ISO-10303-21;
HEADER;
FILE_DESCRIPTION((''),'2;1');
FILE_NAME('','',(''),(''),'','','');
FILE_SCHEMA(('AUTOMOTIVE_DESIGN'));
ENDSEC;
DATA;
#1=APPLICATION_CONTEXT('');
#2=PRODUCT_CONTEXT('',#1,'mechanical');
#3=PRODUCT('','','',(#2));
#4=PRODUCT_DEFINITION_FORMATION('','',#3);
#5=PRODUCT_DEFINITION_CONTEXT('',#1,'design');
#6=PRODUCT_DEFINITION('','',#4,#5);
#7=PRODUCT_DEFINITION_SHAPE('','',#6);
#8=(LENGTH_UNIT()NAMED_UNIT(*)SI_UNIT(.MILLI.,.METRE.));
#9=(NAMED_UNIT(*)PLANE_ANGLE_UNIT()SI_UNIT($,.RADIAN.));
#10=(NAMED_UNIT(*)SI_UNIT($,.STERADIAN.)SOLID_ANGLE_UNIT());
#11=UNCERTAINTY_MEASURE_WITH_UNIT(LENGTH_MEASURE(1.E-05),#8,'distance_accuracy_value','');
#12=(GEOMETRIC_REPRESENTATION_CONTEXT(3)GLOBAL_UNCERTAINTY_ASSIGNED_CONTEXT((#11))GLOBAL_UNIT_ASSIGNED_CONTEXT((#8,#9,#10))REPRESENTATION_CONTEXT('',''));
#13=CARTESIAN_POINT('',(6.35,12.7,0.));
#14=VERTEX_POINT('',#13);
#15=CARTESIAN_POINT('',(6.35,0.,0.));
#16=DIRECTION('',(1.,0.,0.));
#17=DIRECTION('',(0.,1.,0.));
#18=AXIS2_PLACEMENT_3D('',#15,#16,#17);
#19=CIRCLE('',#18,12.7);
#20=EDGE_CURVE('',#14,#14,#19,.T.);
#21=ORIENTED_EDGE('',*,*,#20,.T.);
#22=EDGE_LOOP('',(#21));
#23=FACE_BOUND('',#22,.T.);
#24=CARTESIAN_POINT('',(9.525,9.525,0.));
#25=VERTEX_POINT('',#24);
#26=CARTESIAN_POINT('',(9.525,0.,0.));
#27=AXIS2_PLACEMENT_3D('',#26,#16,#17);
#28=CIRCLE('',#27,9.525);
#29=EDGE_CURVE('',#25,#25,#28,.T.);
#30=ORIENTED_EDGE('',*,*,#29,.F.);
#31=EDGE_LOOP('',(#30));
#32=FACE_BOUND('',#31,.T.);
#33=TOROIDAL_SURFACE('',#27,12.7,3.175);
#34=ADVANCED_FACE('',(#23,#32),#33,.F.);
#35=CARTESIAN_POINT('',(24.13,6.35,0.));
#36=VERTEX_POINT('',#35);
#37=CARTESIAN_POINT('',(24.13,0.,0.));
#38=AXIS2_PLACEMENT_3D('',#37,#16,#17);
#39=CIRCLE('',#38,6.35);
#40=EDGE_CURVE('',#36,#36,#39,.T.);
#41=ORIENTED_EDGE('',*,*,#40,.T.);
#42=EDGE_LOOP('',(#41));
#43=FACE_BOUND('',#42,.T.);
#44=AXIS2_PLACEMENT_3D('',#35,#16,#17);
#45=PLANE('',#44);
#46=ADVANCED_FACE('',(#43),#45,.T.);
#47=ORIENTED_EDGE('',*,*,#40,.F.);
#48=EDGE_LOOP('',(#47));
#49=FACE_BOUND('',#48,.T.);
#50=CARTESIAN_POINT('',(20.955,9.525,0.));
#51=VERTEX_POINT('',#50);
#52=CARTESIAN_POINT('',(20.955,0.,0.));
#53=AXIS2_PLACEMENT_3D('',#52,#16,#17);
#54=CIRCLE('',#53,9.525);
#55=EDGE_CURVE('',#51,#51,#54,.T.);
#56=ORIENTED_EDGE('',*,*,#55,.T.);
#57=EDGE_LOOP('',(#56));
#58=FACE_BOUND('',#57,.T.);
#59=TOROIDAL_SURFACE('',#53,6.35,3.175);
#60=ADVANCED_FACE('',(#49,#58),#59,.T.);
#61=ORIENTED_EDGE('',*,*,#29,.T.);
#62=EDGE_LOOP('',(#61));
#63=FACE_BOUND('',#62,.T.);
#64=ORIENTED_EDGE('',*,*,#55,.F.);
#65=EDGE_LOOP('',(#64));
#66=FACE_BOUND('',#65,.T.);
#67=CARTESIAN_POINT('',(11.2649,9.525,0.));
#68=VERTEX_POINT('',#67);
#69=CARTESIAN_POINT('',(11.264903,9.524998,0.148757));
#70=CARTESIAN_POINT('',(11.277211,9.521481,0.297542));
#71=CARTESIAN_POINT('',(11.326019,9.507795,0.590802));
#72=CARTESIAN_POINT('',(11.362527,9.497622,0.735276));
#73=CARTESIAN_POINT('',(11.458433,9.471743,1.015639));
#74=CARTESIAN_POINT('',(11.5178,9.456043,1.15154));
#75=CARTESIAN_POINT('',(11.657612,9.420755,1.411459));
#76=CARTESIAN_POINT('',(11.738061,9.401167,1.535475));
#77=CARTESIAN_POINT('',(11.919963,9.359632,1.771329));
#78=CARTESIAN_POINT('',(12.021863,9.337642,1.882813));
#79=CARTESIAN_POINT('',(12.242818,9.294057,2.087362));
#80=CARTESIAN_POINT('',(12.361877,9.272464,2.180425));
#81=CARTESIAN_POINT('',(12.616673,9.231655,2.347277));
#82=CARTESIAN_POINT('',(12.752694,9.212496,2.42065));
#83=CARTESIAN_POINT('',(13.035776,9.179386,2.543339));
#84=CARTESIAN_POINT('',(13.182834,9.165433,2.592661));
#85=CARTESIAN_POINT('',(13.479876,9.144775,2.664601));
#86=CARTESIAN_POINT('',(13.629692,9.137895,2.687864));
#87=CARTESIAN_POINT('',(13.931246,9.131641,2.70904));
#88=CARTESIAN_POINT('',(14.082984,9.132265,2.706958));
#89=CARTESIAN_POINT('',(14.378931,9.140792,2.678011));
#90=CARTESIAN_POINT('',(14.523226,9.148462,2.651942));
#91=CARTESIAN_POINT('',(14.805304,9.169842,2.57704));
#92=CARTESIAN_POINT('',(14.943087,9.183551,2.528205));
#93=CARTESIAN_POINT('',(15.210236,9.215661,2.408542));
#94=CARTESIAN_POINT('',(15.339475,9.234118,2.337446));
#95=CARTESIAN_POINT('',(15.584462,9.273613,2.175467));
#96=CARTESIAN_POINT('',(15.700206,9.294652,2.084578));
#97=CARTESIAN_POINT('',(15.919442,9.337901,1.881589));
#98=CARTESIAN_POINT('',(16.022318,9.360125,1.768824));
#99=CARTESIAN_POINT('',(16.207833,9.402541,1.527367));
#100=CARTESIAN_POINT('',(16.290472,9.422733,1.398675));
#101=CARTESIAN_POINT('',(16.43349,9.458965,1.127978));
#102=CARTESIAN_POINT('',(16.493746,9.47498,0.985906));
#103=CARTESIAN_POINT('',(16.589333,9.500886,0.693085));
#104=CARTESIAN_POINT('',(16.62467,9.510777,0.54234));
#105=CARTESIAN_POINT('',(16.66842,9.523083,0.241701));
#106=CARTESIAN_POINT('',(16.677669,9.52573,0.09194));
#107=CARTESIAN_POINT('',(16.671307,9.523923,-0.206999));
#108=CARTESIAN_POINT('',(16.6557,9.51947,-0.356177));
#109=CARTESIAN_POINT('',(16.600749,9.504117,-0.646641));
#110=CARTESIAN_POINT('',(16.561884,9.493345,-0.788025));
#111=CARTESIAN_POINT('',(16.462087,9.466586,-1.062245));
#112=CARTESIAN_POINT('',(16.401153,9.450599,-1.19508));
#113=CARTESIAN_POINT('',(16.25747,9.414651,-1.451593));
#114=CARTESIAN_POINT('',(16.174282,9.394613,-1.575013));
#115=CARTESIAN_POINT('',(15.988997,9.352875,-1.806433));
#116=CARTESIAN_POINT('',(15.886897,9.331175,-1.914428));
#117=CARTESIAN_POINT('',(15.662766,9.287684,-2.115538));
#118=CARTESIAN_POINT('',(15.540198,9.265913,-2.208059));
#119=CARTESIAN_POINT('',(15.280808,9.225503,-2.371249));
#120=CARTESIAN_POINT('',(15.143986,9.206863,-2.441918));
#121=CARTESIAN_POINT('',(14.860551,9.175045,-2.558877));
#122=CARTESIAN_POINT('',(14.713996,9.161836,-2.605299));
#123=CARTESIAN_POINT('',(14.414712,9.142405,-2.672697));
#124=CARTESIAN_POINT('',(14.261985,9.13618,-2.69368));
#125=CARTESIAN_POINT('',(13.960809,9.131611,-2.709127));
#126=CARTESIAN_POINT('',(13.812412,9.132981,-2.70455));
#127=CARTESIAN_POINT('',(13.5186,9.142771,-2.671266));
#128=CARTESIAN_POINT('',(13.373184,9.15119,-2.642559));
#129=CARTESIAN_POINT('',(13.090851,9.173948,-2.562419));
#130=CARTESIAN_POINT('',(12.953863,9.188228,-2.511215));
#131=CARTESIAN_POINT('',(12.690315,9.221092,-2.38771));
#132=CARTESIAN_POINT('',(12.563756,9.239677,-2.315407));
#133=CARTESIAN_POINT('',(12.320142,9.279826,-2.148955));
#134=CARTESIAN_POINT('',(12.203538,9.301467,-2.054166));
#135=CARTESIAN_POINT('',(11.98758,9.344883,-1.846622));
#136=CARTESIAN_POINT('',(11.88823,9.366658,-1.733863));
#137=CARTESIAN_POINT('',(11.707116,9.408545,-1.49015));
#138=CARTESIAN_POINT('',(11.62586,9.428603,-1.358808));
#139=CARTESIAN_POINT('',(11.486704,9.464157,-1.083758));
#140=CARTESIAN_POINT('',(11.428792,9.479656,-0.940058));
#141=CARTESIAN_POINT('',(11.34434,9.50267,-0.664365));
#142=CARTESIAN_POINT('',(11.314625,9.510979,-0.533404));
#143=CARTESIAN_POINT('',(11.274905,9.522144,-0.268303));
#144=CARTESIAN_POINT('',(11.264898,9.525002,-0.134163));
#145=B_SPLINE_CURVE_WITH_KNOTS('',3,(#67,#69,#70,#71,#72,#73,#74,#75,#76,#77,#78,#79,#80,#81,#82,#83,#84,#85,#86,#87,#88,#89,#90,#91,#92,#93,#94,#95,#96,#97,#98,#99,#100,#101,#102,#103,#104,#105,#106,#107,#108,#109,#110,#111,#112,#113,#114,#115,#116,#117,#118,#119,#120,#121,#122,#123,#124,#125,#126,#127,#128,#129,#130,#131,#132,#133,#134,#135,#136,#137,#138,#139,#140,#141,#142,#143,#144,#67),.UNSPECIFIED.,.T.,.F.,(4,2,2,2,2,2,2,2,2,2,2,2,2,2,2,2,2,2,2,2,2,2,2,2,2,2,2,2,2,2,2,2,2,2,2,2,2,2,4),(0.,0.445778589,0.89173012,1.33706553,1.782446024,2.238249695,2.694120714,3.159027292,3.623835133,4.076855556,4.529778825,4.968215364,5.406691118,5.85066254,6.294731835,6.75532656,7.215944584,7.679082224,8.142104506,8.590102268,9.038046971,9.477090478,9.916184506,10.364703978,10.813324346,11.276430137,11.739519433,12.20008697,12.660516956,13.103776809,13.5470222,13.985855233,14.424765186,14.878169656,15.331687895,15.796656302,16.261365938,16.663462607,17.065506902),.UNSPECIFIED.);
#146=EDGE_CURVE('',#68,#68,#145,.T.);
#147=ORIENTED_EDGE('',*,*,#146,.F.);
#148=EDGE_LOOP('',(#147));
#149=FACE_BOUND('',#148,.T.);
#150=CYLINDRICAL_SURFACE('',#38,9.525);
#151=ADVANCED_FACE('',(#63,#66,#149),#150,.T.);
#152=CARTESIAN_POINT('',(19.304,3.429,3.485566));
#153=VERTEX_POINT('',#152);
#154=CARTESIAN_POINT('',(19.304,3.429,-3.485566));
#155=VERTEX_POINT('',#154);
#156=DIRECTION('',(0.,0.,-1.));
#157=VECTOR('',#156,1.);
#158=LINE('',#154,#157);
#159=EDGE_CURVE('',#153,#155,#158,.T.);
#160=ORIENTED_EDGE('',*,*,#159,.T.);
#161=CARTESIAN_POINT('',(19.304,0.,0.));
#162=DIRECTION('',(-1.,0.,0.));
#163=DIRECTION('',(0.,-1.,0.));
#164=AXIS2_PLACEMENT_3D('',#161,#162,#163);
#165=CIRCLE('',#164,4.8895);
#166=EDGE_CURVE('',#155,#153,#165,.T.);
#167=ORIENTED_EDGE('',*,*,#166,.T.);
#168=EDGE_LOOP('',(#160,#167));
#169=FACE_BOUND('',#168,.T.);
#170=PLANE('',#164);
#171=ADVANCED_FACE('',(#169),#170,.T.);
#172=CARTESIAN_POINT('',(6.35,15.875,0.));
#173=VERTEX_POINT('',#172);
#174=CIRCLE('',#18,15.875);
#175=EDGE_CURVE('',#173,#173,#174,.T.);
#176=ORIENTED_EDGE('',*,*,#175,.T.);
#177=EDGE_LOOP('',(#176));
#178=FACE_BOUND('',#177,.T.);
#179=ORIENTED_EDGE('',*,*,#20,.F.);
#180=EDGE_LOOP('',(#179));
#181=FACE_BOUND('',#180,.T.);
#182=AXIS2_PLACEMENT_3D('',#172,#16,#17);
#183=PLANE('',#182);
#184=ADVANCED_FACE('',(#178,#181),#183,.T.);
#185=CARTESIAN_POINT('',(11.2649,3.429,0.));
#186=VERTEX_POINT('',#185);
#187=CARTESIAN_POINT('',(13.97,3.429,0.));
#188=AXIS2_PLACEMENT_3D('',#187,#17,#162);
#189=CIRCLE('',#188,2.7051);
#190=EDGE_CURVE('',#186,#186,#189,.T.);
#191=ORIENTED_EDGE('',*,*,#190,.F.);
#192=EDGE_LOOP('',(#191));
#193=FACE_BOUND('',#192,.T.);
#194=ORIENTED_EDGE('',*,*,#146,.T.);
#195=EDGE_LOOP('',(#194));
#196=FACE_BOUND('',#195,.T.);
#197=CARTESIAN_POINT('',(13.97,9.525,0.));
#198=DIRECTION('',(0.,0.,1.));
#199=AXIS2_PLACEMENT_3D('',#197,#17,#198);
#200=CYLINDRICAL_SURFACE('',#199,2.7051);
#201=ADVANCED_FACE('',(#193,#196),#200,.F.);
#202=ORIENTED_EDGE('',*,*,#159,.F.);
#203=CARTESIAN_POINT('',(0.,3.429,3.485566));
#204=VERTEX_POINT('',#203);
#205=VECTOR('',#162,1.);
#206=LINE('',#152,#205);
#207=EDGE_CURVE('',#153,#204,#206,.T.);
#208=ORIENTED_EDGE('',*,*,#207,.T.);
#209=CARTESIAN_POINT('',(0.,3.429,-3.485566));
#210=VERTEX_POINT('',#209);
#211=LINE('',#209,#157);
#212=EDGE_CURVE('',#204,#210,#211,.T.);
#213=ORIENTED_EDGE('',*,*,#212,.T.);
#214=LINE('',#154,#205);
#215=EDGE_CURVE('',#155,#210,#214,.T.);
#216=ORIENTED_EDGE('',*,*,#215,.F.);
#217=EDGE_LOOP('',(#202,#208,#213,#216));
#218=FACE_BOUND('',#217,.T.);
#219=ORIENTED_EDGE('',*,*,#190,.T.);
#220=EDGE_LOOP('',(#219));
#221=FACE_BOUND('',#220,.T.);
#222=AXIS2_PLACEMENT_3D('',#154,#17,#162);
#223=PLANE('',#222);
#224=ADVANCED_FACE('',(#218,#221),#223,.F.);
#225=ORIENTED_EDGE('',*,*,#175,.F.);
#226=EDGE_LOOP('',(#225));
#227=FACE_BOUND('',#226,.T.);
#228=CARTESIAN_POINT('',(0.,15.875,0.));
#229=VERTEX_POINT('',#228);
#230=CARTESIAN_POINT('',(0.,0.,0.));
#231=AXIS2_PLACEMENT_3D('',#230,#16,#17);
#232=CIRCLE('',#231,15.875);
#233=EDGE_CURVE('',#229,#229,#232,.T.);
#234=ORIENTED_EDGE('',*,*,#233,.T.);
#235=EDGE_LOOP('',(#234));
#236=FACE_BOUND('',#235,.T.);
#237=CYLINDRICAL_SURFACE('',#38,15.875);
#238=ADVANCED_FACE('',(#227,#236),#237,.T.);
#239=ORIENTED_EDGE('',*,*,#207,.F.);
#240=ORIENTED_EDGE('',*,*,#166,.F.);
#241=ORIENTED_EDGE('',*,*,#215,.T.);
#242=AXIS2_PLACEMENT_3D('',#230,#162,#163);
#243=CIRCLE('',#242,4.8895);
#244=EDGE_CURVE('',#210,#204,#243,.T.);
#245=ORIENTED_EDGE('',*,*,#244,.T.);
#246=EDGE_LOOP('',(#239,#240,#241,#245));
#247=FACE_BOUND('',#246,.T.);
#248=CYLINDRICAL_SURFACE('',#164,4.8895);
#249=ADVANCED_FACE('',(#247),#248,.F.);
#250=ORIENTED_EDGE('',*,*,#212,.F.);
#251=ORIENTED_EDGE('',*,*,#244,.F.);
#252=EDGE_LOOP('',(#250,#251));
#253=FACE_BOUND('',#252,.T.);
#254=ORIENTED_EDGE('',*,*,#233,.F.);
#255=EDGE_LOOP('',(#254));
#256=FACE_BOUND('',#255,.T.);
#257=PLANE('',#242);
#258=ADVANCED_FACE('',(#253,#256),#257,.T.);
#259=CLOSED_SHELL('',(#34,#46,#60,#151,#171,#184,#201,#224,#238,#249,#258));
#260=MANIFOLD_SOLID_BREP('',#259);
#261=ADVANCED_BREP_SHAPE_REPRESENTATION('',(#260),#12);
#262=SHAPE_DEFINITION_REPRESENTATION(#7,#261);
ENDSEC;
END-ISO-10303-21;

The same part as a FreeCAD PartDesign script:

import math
import FreeCAD as App
import Part
import Sketcher

V = App.Vector
Q = App.Units.Quantity

doc = App.newDocument("Part")
body = doc.addObject("PartDesign::Body", "Body")

sketch1 = doc.addObject("Sketcher::SketchObject", "Sketch")
body.addObject(sketch1)
sketch1.AttachmentSupport = (doc.XY_Plane, [""])
sketch1.MapMode = "FlatFace"
sketch1.addGeometry(Part.LineSegment(V(0, 15.9, 0), V(0, 0, 0)), False)
sketch1.addGeometry(Part.LineSegment(V(0, 0, 0), V(24.1, 0, 0)), False)
sketch1.addGeometry(Part.LineSegment(V(24.1, 0, 0), V(24.1, 6.3, 0)), False)
sketch1.addGeometry(Part.ArcOfCircle(Part.Circle(V(21, 6.3, 0), V(0, 0, 1), 3.2), math.radians(0), math.radians(90)), False)
sketch1.addGeometry(Part.LineSegment(V(21, 9.5, 0), V(9.5, 9.5, 0)), False)
sketch1.addGeometry(Part.ArcOfCircle(Part.Circle(V(9.5, 12.7, 0), V(0, 0, 1), 3.2), math.radians(-180), math.radians(-90)), False)
sketch1.addGeometry(Part.LineSegment(V(6.3, 12.7, 0), V(6.3, 15.9, 0)), False)
sketch1.addGeometry(Part.LineSegment(V(6.3, 15.9, 0), V(0, 15.9, 0)), False)
sketch1.addConstraint(Sketcher.Constraint("Coincident", 0, 2, 1, 1))
sketch1.addConstraint(Sketcher.Constraint("Coincident", 1, 2, 2, 1))
sketch1.addConstraint(Sketcher.Constraint("Tangent", 2, 2, 3, 1))
sketch1.addConstraint(Sketcher.Constraint("Tangent", 3, 2, 4, 1))
sketch1.addConstraint(Sketcher.Constraint("Tangent", 4, 2, 5, 2))
sketch1.addConstraint(Sketcher.Constraint("Tangent", 5, 1, 6, 1))
sketch1.addConstraint(Sketcher.Constraint("Coincident", 6, 2, 7, 1))
sketch1.addConstraint(Sketcher.Constraint("Coincident", 7, 2, 0, 1))
sketch1.addConstraint(Sketcher.Constraint("Vertical", 0))
sketch1.addConstraint(Sketcher.Constraint("Horizontal", 1))
sketch1.addConstraint(Sketcher.Constraint("Vertical", 2))
sketch1.addConstraint(Sketcher.Constraint("Horizontal", 4))
sketch1.addConstraint(Sketcher.Constraint("Vertical", 6))
sketch1.addConstraint(Sketcher.Constraint("Horizontal", 7))
sketch1.addConstraint(Sketcher.Constraint("Coincident", 0, 2, -1, 1))
sketch1.addConstraint(Sketcher.Constraint("Equal", 3, 5))
sketch1.addConstraint(Sketcher.Constraint("Equal", 7, 2))
sketch1.addConstraint(Sketcher.Constraint("Radius", 3, Q("0.125 in")))
sketch1.addConstraint(Sketcher.Constraint("DistanceX", 1, 1, 1, 2, Q("0.95 in")))
sketch1.addConstraint(Sketcher.Constraint("DistanceX", 4, 2, 4, 1, Q("0.45 in")))
sketch1.addConstraint(Sketcher.Constraint("DistanceY", 0, 2, 0, 1, Q("0.625 in")))
revolution = doc.addObject("PartDesign::Revolution", "Revolution")
body.addObject(revolution)
revolution.Profile = sketch1
revolution.ReferenceAxis = (sketch1, ["H_Axis"])
revolution.Angle = 360

sketch2 = doc.addObject("Sketcher::SketchObject", "Sketch001")
body.addObject(sketch2)
sketch2.AttachmentSupport = (doc.YZ_Plane, [""])
sketch2.MapMode = "FlatFace"
sketch2.addGeometry(Part.LineSegment(V(3.4, 3.5, 0), V(3.4, -3.5, 0)), False)
sketch2.addGeometry(Part.ArcOfCircle(Part.Circle(V(0, 0, 0), V(0, 0, 1), 4.9), math.radians(45), math.radians(315)), False)
sketch2.addConstraint(Sketcher.Constraint("Coincident", 0, 1, 1, 1))
sketch2.addConstraint(Sketcher.Constraint("Coincident", 1, 2, 0, 2))
sketch2.addConstraint(Sketcher.Constraint("Vertical", 0))
sketch2.addConstraint(Sketcher.Constraint("Coincident", 1, 3, -1, 1))
sketch2.addConstraint(Sketcher.Constraint("Radius", 1, Q("0.1925 in")))
sketch2.addConstraint(Sketcher.Constraint("DistanceX", -1, 1, 0, 1, Q("0.135 in")))
pocket1 = doc.addObject("PartDesign::Pocket", "Pocket")
body.addObject(pocket1)
pocket1.Profile = sketch2
pocket1.Length = Q("0.76 in")
pocket1.Reversed = True

sketch3 = doc.addObject("Sketcher::SketchObject", "Sketch002")
body.addObject(sketch3)
sketch3.AttachmentSupport = (doc.XZ_Plane, [""])
sketch3.MapMode = "FlatFace"
sketch3.AttachmentOffset = App.Placement(V(0, 0, -0.375 * 25.4), App.Rotation())
sketch3.addGeometry(Part.Circle(V(14, 0, 0), V(0, 0, 1), 2.7), False)
sketch3.addConstraint(Sketcher.Constraint("PointOnObject", 0, 3, -1))
sketch3.addConstraint(Sketcher.Constraint("Diameter", 0, Q("0.213 in")))
sketch3.addConstraint(Sketcher.Constraint("DistanceX", -1, 1, 0, 3, Q("0.55 in")))
doc.recompute()
hole = doc.addObject("PartDesign::Hole", "Hole")
body.addObject(hole)
hole.Profile = sketch3
hole.ThreadType = "None"
hole.Diameter = Q("0.213 in")
hole.DepthType = "Dimension"
hole.Depth = Q("0.24 in")
hole.DrillPoint = "Flat"
hole.Reversed = True

doc.recompute()
